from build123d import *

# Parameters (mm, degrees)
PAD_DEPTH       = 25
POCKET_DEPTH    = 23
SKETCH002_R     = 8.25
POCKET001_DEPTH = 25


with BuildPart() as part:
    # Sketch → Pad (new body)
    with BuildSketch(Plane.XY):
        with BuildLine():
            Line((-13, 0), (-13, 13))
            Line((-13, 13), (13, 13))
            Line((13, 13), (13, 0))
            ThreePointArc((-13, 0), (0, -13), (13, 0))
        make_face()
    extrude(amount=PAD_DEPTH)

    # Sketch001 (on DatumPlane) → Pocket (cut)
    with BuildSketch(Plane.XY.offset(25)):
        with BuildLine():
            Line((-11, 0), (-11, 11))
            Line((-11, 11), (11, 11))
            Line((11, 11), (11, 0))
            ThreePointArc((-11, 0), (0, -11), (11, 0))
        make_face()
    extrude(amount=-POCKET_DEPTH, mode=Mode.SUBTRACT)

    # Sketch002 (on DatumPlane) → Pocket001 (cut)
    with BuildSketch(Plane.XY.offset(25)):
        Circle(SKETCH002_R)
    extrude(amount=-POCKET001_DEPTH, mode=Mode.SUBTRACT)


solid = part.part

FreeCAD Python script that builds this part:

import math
import FreeCAD as App
import Part
import Sketcher

doc = App.newDocument("Part")
body = doc.addObject("PartDesign::Body", "Body")

# Sketch on XY plane
sketch1 = body.newObject("Sketcher::SketchObject", "Sketch")
sketch1.AttachmentSupport = (doc.getObject("XY_Plane"), [""])
sketch1.MapMode = "FlatFace"
sketch1.addGeometry(Part.LineSegment(App.Vector(-13, 13, 0), App.Vector(-13, 0, 0)), False)
sketch1.addGeometry(Part.ArcOfCircle(Part.Circle(App.Vector(0, 0, 0), App.Vector(0, 0, 1), 13), math.radians(180), math.radians(360)), False)
sketch1.addGeometry(Part.LineSegment(App.Vector(13, 0, 0), App.Vector(13, 13, 0)), False)
sketch1.addGeometry(Part.LineSegment(App.Vector(13, 13, 0), App.Vector(-13, 13, 0)), False)
sketch1.addConstraint(Sketcher.Constraint("Tangent", 0, 2, 1, 1))
sketch1.addConstraint(Sketcher.Constraint("Tangent", 1, 2, 2, 1))
sketch1.addConstraint(Sketcher.Constraint("Coincident", 2, 2, 3, 1))
sketch1.addConstraint(Sketcher.Constraint("Coincident", 3, 2, 0, 1))
sketch1.addConstraint(Sketcher.Constraint("Vertical", 0))
sketch1.addConstraint(Sketcher.Constraint("Vertical", 2))
sketch1.addConstraint(Sketcher.Constraint("Horizontal", 3))
sketch1.addConstraint(Sketcher.Constraint("Coincident", 1, 3, -1, 1))
sketch1.addConstraint(Sketcher.Constraint("Radius", 1, 13.0))
sketch1.addConstraint(Sketcher.Constraint("DistanceY", 0, 2, 0, 1, 13.0))
pad1 = body.newObject("PartDesign::Pad", "Pad")
pad1.Profile = sketch1
pad1.Length = 25

# Sketch on XY plane
sketch2 = body.newObject("Sketcher::SketchObject", "Sketch001")
sketch2.AttachmentSupport = (doc.getObject("XY_Plane"), [""])
sketch2.MapMode = "FlatFace"
sketch2.AttachmentOffset = App.Placement(App.Vector(0, 0, 25), App.Rotation())
sketch2.addGeometry(Part.LineSegment(App.Vector(-11, 11, 0), App.Vector(-11, 0, 0)), False)
sketch2.addGeometry(Part.ArcOfCircle(Part.Circle(App.Vector(0, 0, 0), App.Vector(0, 0, 1), 11), math.radians(180), math.radians(360)), False)
sketch2.addGeometry(Part.LineSegment(App.Vector(11, 0, 0), App.Vector(11, 11, 0)), False)
sketch2.addGeometry(Part.LineSegment(App.Vector(11, 11, 0), App.Vector(-11, 11, 0)), False)
sketch2.addConstraint(Sketcher.Constraint("Tangent", 0, 2, 1, 1))
sketch2.addConstraint(Sketcher.Constraint("Tangent", 1, 2, 2, 1))
sketch2.addConstraint(Sketcher.Constraint("Coincident", 2, 2, 3, 1))
sketch2.addConstraint(Sketcher.Constraint("Coincident", 3, 2, 0, 1))
sketch2.addConstraint(Sketcher.Constraint("Vertical", 0))
sketch2.addConstraint(Sketcher.Constraint("Vertical", 2))
sketch2.addConstraint(Sketcher.Constraint("Horizontal", 3))
sketch2.addConstraint(Sketcher.Constraint("Coincident", 1, 3, -1, 1))
sketch2.addConstraint(Sketcher.Constraint("Radius", 1, 11.0))
sketch2.addConstraint(Sketcher.Constraint("DistanceY", 0, 2, 0, 1, 11.0))
pocket1 = body.newObject("PartDesign::Pocket", "Pocket")
pocket1.Profile = sketch2
pocket1.Length = 23

# Sketch on XY plane
sketch3 = body.newObject("Sketcher::SketchObject", "Sketch002")
sketch3.AttachmentSupport = (doc.getObject("XY_Plane"), [""])
sketch3.MapMode = "FlatFace"
sketch3.AttachmentOffset = App.Placement(App.Vector(0, 0, 25), App.Rotation())
sketch3.addGeometry(Part.Circle(App.Vector(0, 0, 0), App.Vector(0, 0, 1), 8.25), False)
sketch3.addConstraint(Sketcher.Constraint("Coincident", 0, 3, -1, 1))
sketch3.addConstraint(Sketcher.Constraint("Diameter", 0, 16.5))
pocket2 = body.newObject("PartDesign::Pocket", "Pocket001")
pocket2.Profile = sketch3
pocket2.Length = 25

doc.recompute()
